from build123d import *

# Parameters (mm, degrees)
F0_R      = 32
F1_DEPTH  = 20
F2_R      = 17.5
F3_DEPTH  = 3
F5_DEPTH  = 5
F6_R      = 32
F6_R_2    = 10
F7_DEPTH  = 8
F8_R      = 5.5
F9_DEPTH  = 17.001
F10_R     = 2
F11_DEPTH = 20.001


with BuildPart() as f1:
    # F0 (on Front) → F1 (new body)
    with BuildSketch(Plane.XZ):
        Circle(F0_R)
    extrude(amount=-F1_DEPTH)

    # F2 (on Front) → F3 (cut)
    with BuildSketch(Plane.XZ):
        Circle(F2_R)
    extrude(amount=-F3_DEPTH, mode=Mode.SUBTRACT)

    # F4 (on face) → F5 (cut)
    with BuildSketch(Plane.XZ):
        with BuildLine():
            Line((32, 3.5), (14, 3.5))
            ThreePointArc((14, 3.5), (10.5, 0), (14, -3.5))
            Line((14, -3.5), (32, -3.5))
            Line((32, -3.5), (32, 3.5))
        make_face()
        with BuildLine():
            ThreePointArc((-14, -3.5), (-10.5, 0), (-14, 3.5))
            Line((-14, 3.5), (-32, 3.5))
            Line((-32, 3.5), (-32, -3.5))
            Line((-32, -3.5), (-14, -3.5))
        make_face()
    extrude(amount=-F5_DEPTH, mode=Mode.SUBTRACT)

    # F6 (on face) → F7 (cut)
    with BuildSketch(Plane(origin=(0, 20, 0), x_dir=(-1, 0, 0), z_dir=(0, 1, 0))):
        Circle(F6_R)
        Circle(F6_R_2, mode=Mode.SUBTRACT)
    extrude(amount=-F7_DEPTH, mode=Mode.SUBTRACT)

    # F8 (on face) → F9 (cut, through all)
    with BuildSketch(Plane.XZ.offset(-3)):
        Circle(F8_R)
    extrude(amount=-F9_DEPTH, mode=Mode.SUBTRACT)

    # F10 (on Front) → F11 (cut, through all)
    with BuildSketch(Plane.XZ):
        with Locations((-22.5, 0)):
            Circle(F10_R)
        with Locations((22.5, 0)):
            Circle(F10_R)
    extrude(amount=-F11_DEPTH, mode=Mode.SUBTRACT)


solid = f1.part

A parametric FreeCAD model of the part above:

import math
import FreeCAD as App
import Part
import Sketcher
Q = App.Units.Quantity

doc = App.newDocument("Part")
params = doc.addObject("Spreadsheet::Sheet", "Params")
for row, (alias, value) in enumerate([
    ("sketch1_diameter", "64 mm"),
    ("pad1_length", "20 mm"),
    ("sketch2_diameter", "35 mm"),
    ("pocket1_length", "3 mm"),
    ("sketch3_radius", "3.5 mm"),
    ("sketch3_width", "18 mm"),
    ("pocket2_length", "5 mm"),
    ("sketch4_diameter", "64 mm"),
    ("sketch4_diameter2", "20 mm"),
    ("pocket3_length", "8 mm"),
    ("sketch5_diameter", "11 mm"),
    ("sketch6_diameter", "4 mm"),
], start=1):
    params.set(f"A{row}", alias)
    params.set(f"B{row}", "=" + value)
    params.setAlias(f"B{row}", alias)

body = doc.addObject("PartDesign::Body", "Body")

sketch1 = body.newObject("Sketcher::SketchObject", "Sketch")
sketch1.AttachmentSupport = (doc.getObject("XZ_Plane"), [""])
sketch1.MapMode = "FlatFace"
sketch1.addGeometry(Part.Circle(App.Vector(0, 0, 0), App.Vector(0, 0, 1), 32), False)
sketch1.addConstraint(Sketcher.Constraint("Coincident", 0, 3, -1, 1))
sketch1.addConstraint(Sketcher.Constraint("Diameter", 0, Q("64 mm")))
sketch1.setExpression("Constraints[1]", "Params.sketch1_diameter")
pad1 = body.newObject("PartDesign::Pad", "Pad")
pad1.Profile = sketch1
pad1.setExpression("Length", "Params.pad1_length")
pad1.Reversed = True

sketch2 = body.newObject("Sketcher::SketchObject", "Sketch001")
sketch2.AttachmentSupport = (doc.getObject("XZ_Plane"), [""])
sketch2.MapMode = "FlatFace"
sketch2.addGeometry(Part.Circle(App.Vector(0, 0, 0), App.Vector(0, 0, 1), 18), False)
sketch2.addConstraint(Sketcher.Constraint("Coincident", 0, 3, -1, 1))
sketch2.addConstraint(Sketcher.Constraint("Diameter", 0, Q("35 mm")))
sketch2.setExpression("Constraints[1]", "Params.sketch2_diameter")
pocket1 = body.newObject("PartDesign::Pocket", "Pocket")
pocket1.Profile = sketch2
pocket1.setExpression("Length", "Params.pocket1_length")

sketch3 = body.newObject("Sketcher::SketchObject", "Sketch002")
sketch3.AttachmentSupport = (doc.getObject("XZ_Plane"), [""])
sketch3.MapMode = "FlatFace"
sketch3.addGeometry(Part.LineSegment(App.Vector(32, 3.5, 0), App.Vector(14, 3.5, 0)), False)
sketch3.addGeometry(Part.ArcOfCircle(Part.Circle(App.Vector(14, 0, 0), App.Vector(0, 0, 1), 3.5), math.radians(90), math.radians(270)), False)
sketch3.addGeometry(Part.LineSegment(App.Vector(14, -3.5, 0), App.Vector(32, -3.5, 0)), False)
sketch3.addGeometry(Part.LineSegment(App.Vector(32, -3.5, 0), App.Vector(32, 3.5, 0)), False)
sketch3.addGeometry(Part.ArcOfCircle(Part.Circle(App.Vector(-14, 0, 0), App.Vector(0, 0, 1), 3.5), math.radians(-90), math.radians(90)), False)
sketch3.addGeometry(Part.LineSegment(App.Vector(-14, 3.5, 0), App.Vector(-32, 3.5, 0)), False)
sketch3.addGeometry(Part.LineSegment(App.Vector(-32, 3.5, 0), App.Vector(-32, -3.5, 0)), False)
sketch3.addGeometry(Part.LineSegment(App.Vector(-32, -3.5, 0), App.Vector(-14, -3.5, 0)), False)
sketch3.addConstraint(Sketcher.Constraint("Tangent", 0, 2, 1, 1))
sketch3.addConstraint(Sketcher.Constraint("Tangent", 1, 2, 2, 1))
sketch3.addConstraint(Sketcher.Constraint("Coincident", 2, 2, 3, 1))
sketch3.addConstraint(Sketcher.Constraint("Coincident", 3, 2, 0, 1))
sketch3.addConstraint(Sketcher.Constraint("Tangent", 4, 2, 5, 1))
sketch3.addConstraint(Sketcher.Constraint("Coincident", 5, 2, 6, 1))
sketch3.addConstraint(Sketcher.Constraint("Coincident", 6, 2, 7, 1))
sketch3.addConstraint(Sketcher.Constraint("Tangent", 7, 2, 4, 1))
sketch3.addConstraint(Sketcher.Constraint("Horizontal", 0))
sketch3.addConstraint(Sketcher.Constraint("Horizontal", 2))
sketch3.addConstraint(Sketcher.Constraint("Vertical", 3))
sketch3.addConstraint(Sketcher.Constraint("Horizontal", 5))
sketch3.addConstraint(Sketcher.Constraint("Vertical", 6))
sketch3.addConstraint(Sketcher.Constraint("Horizontal", 7))
sketch3.addConstraint(Sketcher.Constraint("Equal", 1, 4))
sketch3.addConstraint(Sketcher.Constraint("Symmetric", 1, 3, 4, 3, -1, 1))
sketch3.addConstraint(Sketcher.Constraint("Symmetric", 3, 2, 5, 2, -2))
sketch3.addConstraint(Sketcher.Constraint("Radius", 1, Q("3.5 mm")))
sketch3.addConstraint(Sketcher.Constraint("DistanceX", 0, 2, 0, 1, Q("18 mm")))
sketch3.addConstraint(Sketcher.Constraint("DistanceX", -1, 1, 1, 3, Q("14 mm")))
sketch3.setExpression("Constraints[17]", "Params.sketch3_radius")
sketch3.setExpression("Constraints[18]", "Params.sketch3_width")
pocket2 = body.newObject("PartDesign::Pocket", "Pocket001")
pocket2.Profile = sketch3
pocket2.setExpression("Length", "Params.pocket2_length")

sketch4 = body.newObject("Sketcher::SketchObject", "Sketch003")
sketch4.AttachmentSupport = (doc.getObject("XZ_Plane"), [""])
sketch4.MapMode = "FlatFace"
sketch4.AttachmentOffset = App.Placement(App.Vector(0, 0, -20), App.Rotation())
sketch4.addGeometry(Part.Circle(App.Vector(0, 0, 0), App.Vector(0, 0, 1), 32), False)
sketch4.addGeometry(Part.Circle(App.Vector(0, 0, 0), App.Vector(0, 0, 1), 10), False)
sketch4.addConstraint(Sketcher.Constraint("Coincident", 0, 3, -1, 1))
sketch4.addConstraint(Sketcher.Constraint("Coincident", 1, 3, -1, 1))
sketch4.addConstraint(Sketcher.Constraint("Diameter", 0, Q("64 mm")))
sketch4.addConstraint(Sketcher.Constraint("Diameter", 1, Q("20 mm")))
sketch4.setExpression("Constraints[2]", "Params.sketch4_diameter")
sketch4.setExpression("Constraints[3]", "Params.sketch4_diameter2")
pocket3 = body.newObject("PartDesign::Pocket", "Pocket002")
pocket3.Profile = sketch4
pocket3.setExpression("Length", "Params.pocket3_length")
pocket3.Reversed = True

sketch5 = body.newObject("Sketcher::SketchObject", "Sketch004")
sketch5.AttachmentSupport = (doc.getObject("XZ_Plane"), [""])
sketch5.MapMode = "FlatFace"
sketch5.AttachmentOffset = App.Placement(App.Vector(0, 0, -3), App.Rotation())
sketch5.addGeometry(Part.Circle(App.Vector(0, 0, 0), App.Vector(0, 0, 1), 6), False)
sketch5.addConstraint(Sketcher.Constraint("Coincident", 0, 3, -1, 1))
sketch5.addConstraint(Sketcher.Constraint("Diameter", 0, Q("11 mm")))
sketch5.setExpression("Constraints[1]", "Params.sketch5_diameter")
pocket4 = body.newObject("PartDesign::Pocket", "Pocket003")
pocket4.Profile = sketch5
pocket4.Type = "ThroughAll"

sketch6 = body.newObject("Sketcher::SketchObject", "Sketch005")
sketch6.AttachmentSupport = (doc.getObject("XZ_Plane"), [""])
sketch6.MapMode = "FlatFace"
sketch6.addGeometry(Part.Circle(App.Vector(-22.5, 0, 0), App.Vector(0, 0, 1), 2), False)
sketch6.addGeometry(Part.Circle(App.Vector(22.5, 0, 0), App.Vector(0, 0, 1), 2), False)
sketch6.addConstraint(Sketcher.Constraint("Equal", 0, 1))
sketch6.addConstraint(Sketcher.Constraint("Symmetric", 0, 3, 1, 3, -1, 1))
sketch6.addConstraint(Sketcher.Constraint("PointOnObject", 0, 3, -1))
sketch6.addConstraint(Sketcher.Constraint("Diameter", 0, Q("4 mm")))
sketch6.addConstraint(Sketcher.Constraint("DistanceX", 0, 3, 1, 3, Q("45 mm")))
sketch6.setExpression("Constraints[3]", "Params.sketch6_diameter")
pocket5 = body.newObject("PartDesign::Pocket", "Pocket004")
pocket5.Profile = sketch6
pocket5.Type = "ThroughAll"

doc.recompute()
